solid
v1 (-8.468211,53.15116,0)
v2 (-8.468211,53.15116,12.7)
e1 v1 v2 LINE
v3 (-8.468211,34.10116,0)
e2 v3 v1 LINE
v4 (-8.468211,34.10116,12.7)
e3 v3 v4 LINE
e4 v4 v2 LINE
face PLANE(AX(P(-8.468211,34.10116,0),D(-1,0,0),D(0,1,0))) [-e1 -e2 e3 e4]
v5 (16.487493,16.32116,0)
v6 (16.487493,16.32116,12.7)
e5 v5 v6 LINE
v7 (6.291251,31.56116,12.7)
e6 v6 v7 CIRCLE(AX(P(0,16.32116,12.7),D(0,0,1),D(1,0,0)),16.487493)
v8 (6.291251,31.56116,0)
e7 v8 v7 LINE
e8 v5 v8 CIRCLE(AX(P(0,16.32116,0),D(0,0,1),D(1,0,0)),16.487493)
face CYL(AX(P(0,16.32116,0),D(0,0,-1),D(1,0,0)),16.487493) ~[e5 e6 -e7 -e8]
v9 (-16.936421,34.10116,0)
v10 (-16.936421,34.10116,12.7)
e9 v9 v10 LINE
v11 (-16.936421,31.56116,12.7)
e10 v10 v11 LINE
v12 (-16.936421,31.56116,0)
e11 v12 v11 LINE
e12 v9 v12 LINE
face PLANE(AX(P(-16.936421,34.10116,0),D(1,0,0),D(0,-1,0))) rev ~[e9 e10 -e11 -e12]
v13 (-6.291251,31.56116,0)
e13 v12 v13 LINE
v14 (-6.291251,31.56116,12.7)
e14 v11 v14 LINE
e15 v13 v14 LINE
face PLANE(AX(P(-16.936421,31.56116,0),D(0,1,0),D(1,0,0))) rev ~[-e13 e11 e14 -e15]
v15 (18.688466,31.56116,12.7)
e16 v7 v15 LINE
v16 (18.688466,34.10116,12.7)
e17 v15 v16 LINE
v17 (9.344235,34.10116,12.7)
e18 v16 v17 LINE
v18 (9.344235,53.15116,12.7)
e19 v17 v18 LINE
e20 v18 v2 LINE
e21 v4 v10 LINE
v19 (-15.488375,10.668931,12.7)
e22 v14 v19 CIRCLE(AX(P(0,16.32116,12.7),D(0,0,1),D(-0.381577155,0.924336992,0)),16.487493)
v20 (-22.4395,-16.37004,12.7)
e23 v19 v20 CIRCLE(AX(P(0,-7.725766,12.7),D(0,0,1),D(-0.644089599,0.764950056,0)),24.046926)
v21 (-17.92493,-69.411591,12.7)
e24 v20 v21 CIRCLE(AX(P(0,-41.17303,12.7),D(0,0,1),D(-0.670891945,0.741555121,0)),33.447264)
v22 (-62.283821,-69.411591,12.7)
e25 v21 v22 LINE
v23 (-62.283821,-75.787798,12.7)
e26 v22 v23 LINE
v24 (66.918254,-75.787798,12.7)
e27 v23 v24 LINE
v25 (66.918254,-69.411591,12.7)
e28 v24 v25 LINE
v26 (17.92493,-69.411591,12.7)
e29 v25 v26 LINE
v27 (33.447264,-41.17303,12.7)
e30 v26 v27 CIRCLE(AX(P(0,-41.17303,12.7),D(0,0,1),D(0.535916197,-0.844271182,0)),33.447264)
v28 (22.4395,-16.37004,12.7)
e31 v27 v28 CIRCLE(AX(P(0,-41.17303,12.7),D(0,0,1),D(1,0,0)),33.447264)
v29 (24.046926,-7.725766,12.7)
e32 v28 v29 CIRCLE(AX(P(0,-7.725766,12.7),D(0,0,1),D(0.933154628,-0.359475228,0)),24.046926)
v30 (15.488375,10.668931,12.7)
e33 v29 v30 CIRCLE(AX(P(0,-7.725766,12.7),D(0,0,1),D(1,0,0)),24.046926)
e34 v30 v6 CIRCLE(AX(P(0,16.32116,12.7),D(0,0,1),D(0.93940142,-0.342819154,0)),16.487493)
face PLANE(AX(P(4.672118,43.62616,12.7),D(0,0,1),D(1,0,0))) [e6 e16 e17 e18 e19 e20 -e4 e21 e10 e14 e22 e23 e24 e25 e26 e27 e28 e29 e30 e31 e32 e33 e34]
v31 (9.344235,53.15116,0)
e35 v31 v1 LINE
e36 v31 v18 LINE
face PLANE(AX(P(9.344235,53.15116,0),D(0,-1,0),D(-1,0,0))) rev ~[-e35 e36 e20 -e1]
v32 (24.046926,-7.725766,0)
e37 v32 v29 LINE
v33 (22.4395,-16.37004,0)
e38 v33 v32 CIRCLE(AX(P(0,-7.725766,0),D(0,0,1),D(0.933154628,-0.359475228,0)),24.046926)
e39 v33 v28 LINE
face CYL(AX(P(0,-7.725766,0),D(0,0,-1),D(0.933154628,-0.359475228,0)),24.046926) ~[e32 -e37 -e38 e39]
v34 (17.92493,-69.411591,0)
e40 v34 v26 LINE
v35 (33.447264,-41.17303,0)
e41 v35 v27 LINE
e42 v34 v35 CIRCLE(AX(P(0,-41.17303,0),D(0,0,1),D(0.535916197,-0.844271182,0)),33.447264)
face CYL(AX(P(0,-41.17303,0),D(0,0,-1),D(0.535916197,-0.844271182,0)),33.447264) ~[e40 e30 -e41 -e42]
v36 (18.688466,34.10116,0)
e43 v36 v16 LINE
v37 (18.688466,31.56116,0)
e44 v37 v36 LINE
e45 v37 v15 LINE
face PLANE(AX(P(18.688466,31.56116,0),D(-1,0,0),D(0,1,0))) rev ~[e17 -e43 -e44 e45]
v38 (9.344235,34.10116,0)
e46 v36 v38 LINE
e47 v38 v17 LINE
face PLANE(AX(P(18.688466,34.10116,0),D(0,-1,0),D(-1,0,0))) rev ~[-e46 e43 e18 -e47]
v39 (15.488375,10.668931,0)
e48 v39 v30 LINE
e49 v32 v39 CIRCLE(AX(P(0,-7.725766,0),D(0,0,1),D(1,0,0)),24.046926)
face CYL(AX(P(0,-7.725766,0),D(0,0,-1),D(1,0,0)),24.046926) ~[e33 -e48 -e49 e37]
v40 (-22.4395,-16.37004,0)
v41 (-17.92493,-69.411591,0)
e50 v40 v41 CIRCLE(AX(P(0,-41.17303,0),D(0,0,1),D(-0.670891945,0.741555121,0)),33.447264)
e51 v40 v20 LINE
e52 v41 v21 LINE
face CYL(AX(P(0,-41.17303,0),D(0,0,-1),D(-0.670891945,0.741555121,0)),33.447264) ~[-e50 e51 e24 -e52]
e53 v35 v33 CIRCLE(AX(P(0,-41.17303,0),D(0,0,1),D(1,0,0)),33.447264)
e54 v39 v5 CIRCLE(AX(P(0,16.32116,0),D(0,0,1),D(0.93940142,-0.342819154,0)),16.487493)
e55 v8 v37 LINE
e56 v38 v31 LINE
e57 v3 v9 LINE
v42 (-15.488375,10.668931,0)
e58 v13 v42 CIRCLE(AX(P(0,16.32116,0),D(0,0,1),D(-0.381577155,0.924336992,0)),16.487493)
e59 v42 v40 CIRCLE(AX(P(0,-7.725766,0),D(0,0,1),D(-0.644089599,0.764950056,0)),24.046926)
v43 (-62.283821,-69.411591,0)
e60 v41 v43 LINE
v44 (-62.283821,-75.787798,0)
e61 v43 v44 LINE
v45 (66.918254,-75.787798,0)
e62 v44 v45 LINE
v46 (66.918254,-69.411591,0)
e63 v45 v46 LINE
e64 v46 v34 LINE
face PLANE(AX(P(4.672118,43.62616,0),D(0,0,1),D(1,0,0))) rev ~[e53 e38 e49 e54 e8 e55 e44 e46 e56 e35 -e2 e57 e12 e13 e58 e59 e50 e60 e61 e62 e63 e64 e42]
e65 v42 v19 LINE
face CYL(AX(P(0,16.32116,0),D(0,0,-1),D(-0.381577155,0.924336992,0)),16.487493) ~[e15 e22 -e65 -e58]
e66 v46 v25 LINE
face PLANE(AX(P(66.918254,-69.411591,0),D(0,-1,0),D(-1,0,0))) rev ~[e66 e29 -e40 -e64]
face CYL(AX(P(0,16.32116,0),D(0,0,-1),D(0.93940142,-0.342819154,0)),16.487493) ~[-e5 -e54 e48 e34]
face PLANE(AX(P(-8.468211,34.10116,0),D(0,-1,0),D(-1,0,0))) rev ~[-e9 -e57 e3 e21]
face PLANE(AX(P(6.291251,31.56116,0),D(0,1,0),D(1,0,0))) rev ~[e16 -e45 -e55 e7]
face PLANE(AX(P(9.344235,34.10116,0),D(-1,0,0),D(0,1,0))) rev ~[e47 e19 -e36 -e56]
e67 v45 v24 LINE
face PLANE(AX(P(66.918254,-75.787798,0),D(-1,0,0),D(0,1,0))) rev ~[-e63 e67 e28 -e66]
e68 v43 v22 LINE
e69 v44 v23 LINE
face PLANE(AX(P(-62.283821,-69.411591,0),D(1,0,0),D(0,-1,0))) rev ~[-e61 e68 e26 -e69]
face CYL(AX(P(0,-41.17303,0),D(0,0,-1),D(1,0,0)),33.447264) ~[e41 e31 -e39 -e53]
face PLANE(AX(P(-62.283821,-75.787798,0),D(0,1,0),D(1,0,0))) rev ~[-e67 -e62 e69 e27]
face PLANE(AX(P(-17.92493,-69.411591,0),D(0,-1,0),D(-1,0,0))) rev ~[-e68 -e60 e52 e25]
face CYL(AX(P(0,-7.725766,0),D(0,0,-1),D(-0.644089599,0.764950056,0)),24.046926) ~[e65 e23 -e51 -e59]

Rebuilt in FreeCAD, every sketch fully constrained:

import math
import FreeCAD as App
import Part
import Sketcher
from FreeCAD import Vector
Q = App.Units.Quantity

doc = App.newDocument("Part")
body = doc.addObject("PartDesign::Body", "Body")

sketch1 = doc.addObject("Sketcher::SketchObject", "Sketch")
body.addObject(sketch1)
sketch1.AttachmentSupport = (doc.XY_Plane, [""])
sketch1.MapMode = "FlatFace"
sketch1.addGeometry(Part.LineSegment(Vector(-16.9, 31.6, 0), Vector(-6.3, 31.6, 0)), False)
sketch1.addGeometry(Part.ArcOfCircle(Part.Circle(Vector(0, 16.3, 0), Vector(0, 0, 1), 16.5), math.radians(112), math.radians(200)), False)
sketch1.addGeometry(Part.ArcOfCircle(Part.Circle(Vector(0, -7.7, 0), Vector(0, 0, 1), 24), math.radians(130), math.radians(201)), False)
sketch1.addGeometry(Part.ArcOfCircle(Part.Circle(Vector(0, -41.2, 0), Vector(0, 0, 1), 33.4), math.radians(132), math.radians(238)), False)
sketch1.addGeometry(Part.LineSegment(Vector(-17.9, -69.4, 0), Vector(-62.3, -69.4, 0)), False)
sketch1.addGeometry(Part.LineSegment(Vector(-62.3, -69.4, 0), Vector(-62.3, -75.8, 0)), False)
sketch1.addGeometry(Part.LineSegment(Vector(-62.3, -75.8, 0), Vector(66.9, -75.8, 0)), False)
sketch1.addGeometry(Part.LineSegment(Vector(66.9, -75.8, 0), Vector(66.9, -69.4, 0)), False)
sketch1.addGeometry(Part.LineSegment(Vector(66.9, -69.4, 0), Vector(17.9, -69.4, 0)), False)
sketch1.addGeometry(Part.ArcOfCircle(Part.Circle(Vector(0, -41.2, 0), Vector(0, 0, 1), 33.4), math.radians(-58), math.radians(0)), False)
sketch1.addGeometry(Part.ArcOfCircle(Part.Circle(Vector(0, -41.2, 0), Vector(0, 0, 1), 33.4), math.radians(0), math.radians(48)), False)
sketch1.addGeometry(Part.ArcOfCircle(Part.Circle(Vector(0, -7.7, 0), Vector(0, 0, 1), 24), math.radians(-21), math.radians(0)), False)
sketch1.addGeometry(Part.ArcOfCircle(Part.Circle(Vector(0, -7.7, 0), Vector(0, 0, 1), 24), math.radians(0), math.radians(50)), False)
sketch1.addGeometry(Part.ArcOfCircle(Part.Circle(Vector(0, 16.3, 0), Vector(0, 0, 1), 16.5), math.radians(-20), math.radians(0)), False)
sketch1.addGeometry(Part.ArcOfCircle(Part.Circle(Vector(0, 16.3, 0), Vector(0, 0, 1), 16.5), math.radians(0), math.radians(68)), False)
sketch1.addGeometry(Part.LineSegment(Vector(6.3, 31.6, 0), Vector(18.7, 31.6, 0)), False)
sketch1.addGeometry(Part.LineSegment(Vector(18.7, 31.6, 0), Vector(18.7, 34.1, 0)), False)
sketch1.addGeometry(Part.LineSegment(Vector(18.7, 34.1, 0), Vector(9.3, 34.1, 0)), False)
sketch1.addGeometry(Part.LineSegment(Vector(9.3, 34.1, 0), Vector(9.3, 53.2, 0)), False)
sketch1.addGeometry(Part.LineSegment(Vector(9.3, 53.2, 0), Vector(-8.5, 53.2, 0)), False)
sketch1.addGeometry(Part.LineSegment(Vector(-8.5, 53.2, 0), Vector(-8.5, 34.1, 0)), False)
sketch1.addGeometry(Part.LineSegment(Vector(-8.5, 34.1, 0), Vector(-16.9, 34.1, 0)), False)
sketch1.addGeometry(Part.LineSegment(Vector(-16.9, 34.1, 0), Vector(-16.9, 31.6, 0)), False)
sketch1.addConstraint(Sketcher.Constraint("Coincident", 0, 2, 1, 1))
sketch1.addConstraint(Sketcher.Constraint("Coincident", 1, 2, 2, 1))
sketch1.addConstraint(Sketcher.Constraint("Coincident", 2, 2, 3, 1))
sketch1.addConstraint(Sketcher.Constraint("Coincident", 3, 2, 4, 1))
sketch1.addConstraint(Sketcher.Constraint("Coincident", 4, 2, 5, 1))
sketch1.addConstraint(Sketcher.Constraint("Coincident", 5, 2, 6, 1))
sketch1.addConstraint(Sketcher.Constraint("Coincident", 6, 2, 7, 1))
sketch1.addConstraint(Sketcher.Constraint("Coincident", 7, 2, 8, 1))
sketch1.addConstraint(Sketcher.Constraint("Coincident", 8, 2, 9, 1))
sketch1.addConstraint(Sketcher.Constraint("Tangent", 9, 2, 10, 1))
sketch1.addConstraint(Sketcher.Constraint("Coincident", 10, 2, 11, 1))
sketch1.addConstraint(Sketcher.Constraint("Tangent", 11, 2, 12, 1))
sketch1.addConstraint(Sketcher.Constraint("Coincident", 12, 2, 13, 1))
sketch1.addConstraint(Sketcher.Constraint("Tangent", 13, 2, 14, 1))
sketch1.addConstraint(Sketcher.Constraint("Coincident", 14, 2, 15, 1))
sketch1.addConstraint(Sketcher.Constraint("Coincident", 15, 2, 16, 1))
sketch1.addConstraint(Sketcher.Constraint("Coincident", 16, 2, 17, 1))
sketch1.addConstraint(Sketcher.Constraint("Coincident", 17, 2, 18, 1))
sketch1.addConstraint(Sketcher.Constraint("Coincident", 18, 2, 19, 1))
sketch1.addConstraint(Sketcher.Constraint("Coincident", 19, 2, 20, 1))
sketch1.addConstraint(Sketcher.Constraint("Coincident", 20, 2, 21, 1))
sketch1.addConstraint(Sketcher.Constraint("Coincident", 21, 2, 22, 1))
sketch1.addConstraint(Sketcher.Constraint("Coincident", 22, 2, 0, 1))
sketch1.addConstraint(Sketcher.Constraint("Horizontal", 0))
sketch1.addConstraint(Sketcher.Constraint("Horizontal", 4))
sketch1.addConstraint(Sketcher.Constraint("Vertical", 5))
sketch1.addConstraint(Sketcher.Constraint("Horizontal", 6))
sketch1.addConstraint(Sketcher.Constraint("Vertical", 7))
sketch1.addConstraint(Sketcher.Constraint("Horizontal", 8))
sketch1.addConstraint(Sketcher.Constraint("Horizontal", 15))
sketch1.addConstraint(Sketcher.Constraint("Vertical", 16))
sketch1.addConstraint(Sketcher.Constraint("Horizontal", 17))
sketch1.addConstraint(Sketcher.Constraint("Vertical", 18))
sketch1.addConstraint(Sketcher.Constraint("Horizontal", 19))
sketch1.addConstraint(Sketcher.Constraint("Vertical", 20))
sketch1.addConstraint(Sketcher.Constraint("Horizontal", 21))
sketch1.addConstraint(Sketcher.Constraint("Vertical", 22))
sketch1.addConstraint(Sketcher.Constraint("Coincident", 9, 3, 3, 3))
sketch1.addConstraint(Sketcher.Constraint("Coincident", 11, 3, 2, 3))
sketch1.addConstraint(Sketcher.Constraint("Coincident", 13, 3, 1, 3))
sketch1.addConstraint(Sketcher.Constraint("Equal", 3, 9))
sketch1.addConstraint(Sketcher.Constraint("Equal", 9, 10))
sketch1.addConstraint(Sketcher.Constraint("Equal", 2, 11))
sketch1.addConstraint(Sketcher.Constraint("Equal", 11, 12))
sketch1.addConstraint(Sketcher.Constraint("Equal", 1, 13))
sketch1.addConstraint(Sketcher.Constraint("Equal", 13, 14))
sketch1.addConstraint(Sketcher.Constraint("Symmetric", 3, 2, 8, 2, -2))
sketch1.addConstraint(Sketcher.Constraint("Symmetric", 1, 2, 12, 2, -2))
sketch1.addConstraint(Sketcher.Constraint("Horizontal", 10, 3, 9, 2))
sketch1.addConstraint(Sketcher.Constraint("Horizontal", 12, 3, 11, 2))
sketch1.addConstraint(Sketcher.Constraint("Horizontal", 14, 3, 13, 2))
sketch1.addConstraint(Sketcher.Constraint("Horizontal", 0, 2, 14, 2))
sketch1.addConstraint(Sketcher.Constraint("Horizontal", 17, 2, 20, 2))
sketch1.addConstraint(Sketcher.Constraint("DistanceY", 16, 1, 16, 2, Q("0.1 in")))
sketch1.addConstraint(Sketcher.Constraint("DistanceY", 18, 1, 18, 2, Q("0.75 in")))
sketch1.addConstraint(Sketcher.Constraint("DistanceY", 1, 3, 0, 2, Q("0.6 in")))
sketch1.addConstraint(Sketcher.Constraint("Radius", 1, 16.487493))
sketch1.addConstraint(Sketcher.Constraint("Radius", 2, 24.046926))
sketch1.addConstraint(Sketcher.Constraint("Radius", 3, 33.447264))
sketch1.addConstraint(Sketcher.Constraint("DistanceX", 0, 1, 0, 2, 10.645171))
sketch1.addConstraint(Sketcher.Constraint("DistanceX", 4, 2, 4, 1, 44.358891))
sketch1.addConstraint(Sketcher.Constraint("DistanceX", 17, 2, 17, 1, 9.344231))
sketch1.addConstraint(Sketcher.Constraint("DistanceX", 21, 2, 21, 1, 8.468211))
sketch1.addConstraint(Sketcher.Constraint("DistanceX", 2, 2, -1, 1, 22.4395))
sketch1.addConstraint(Sketcher.Constraint("DistanceX", 6, 1, 6, 2, 129.202075))
sketch1.addConstraint(Sketcher.Constraint("DistanceX", 8, 2, 8, 1, 48.993323))
sketch1.addConstraint(Sketcher.Constraint("DistanceX", 15, 1, 15, 2, 12.397216))
sketch1.addConstraint(Sketcher.Constraint("DistanceY", 5, 2, 5, 1, 6.376207))
sketch1.addConstraint(Sketcher.Constraint("DistanceY", -1, 1, 1, 3, 16.32116))
sketch1.addConstraint(Sketcher.Constraint("DistanceY", 3, 3, -1, 1, 41.17303))
pad1 = doc.addObject("PartDesign::Pad", "Pad")
body.addObject(pad1)
pad1.Profile = sketch1
pad1.Length = Q("0.5 in")

doc.recompute()
